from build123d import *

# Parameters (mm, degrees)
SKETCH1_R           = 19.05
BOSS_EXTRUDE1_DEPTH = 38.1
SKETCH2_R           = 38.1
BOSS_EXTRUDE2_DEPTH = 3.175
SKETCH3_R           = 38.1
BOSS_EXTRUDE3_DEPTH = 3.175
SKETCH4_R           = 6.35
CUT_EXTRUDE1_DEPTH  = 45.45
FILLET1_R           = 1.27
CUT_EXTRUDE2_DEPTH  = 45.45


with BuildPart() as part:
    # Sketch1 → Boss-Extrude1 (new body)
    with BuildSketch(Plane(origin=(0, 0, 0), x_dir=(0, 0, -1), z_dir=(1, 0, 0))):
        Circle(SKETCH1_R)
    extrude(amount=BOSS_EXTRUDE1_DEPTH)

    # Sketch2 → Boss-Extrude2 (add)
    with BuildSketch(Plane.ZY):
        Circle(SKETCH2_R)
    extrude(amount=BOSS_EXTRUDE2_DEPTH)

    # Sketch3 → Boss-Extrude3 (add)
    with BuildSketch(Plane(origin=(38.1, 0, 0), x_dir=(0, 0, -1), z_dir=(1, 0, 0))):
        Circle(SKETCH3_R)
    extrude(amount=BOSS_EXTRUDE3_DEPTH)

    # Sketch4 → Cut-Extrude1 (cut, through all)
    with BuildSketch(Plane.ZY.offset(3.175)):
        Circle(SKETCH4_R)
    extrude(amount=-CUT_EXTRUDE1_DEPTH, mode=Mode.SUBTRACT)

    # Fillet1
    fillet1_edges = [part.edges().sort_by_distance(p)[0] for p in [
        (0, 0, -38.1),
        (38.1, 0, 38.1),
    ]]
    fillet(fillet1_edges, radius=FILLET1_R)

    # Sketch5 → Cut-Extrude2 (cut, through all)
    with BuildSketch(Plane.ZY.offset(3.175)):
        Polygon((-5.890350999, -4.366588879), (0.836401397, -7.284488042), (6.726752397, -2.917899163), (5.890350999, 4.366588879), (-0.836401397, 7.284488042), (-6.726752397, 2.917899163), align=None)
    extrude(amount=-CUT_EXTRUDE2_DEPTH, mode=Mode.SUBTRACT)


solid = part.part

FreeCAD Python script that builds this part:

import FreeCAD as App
import Part
import Sketcher
from FreeCAD import Vector
Q = App.Units.Quantity


def edges_at(feature, points):
    """Names of the edges that pass closest to the given points."""
    edges = feature.Shape.Edges
    near = lambda p: min(range(len(edges)), key=lambda i: edges[i].distToShape(Part.Vertex(*p))[0])
    return sorted({f"Edge{near(p) + 1}" for p in points})

doc = App.newDocument("Part")
body = doc.addObject("PartDesign::Body", "Body")

sketch1 = body.newObject("Sketcher::SketchObject", "Sketch")
sketch1.AttachmentSupport = (doc.getObject("YZ_Plane"), [""])
sketch1.MapMode = "FlatFace"
sketch1.addGeometry(Part.Circle(Vector(0, 0, 0), Vector(0, 0, 1), 19), False)
sketch1.addConstraint(Sketcher.Constraint("Coincident", 0, 3, -1, 1))
sketch1.addConstraint(Sketcher.Constraint("Diameter", 0, Q("1.5 in")))
pad1 = body.newObject("PartDesign::Pad", "Pad")
pad1.Profile = sketch1
pad1.Length = Q("1.5 in")

sketch2 = body.newObject("Sketcher::SketchObject", "Sketch001")
sketch2.AttachmentSupport = (doc.getObject("YZ_Plane"), [""])
sketch2.MapMode = "FlatFace"
sketch2.addGeometry(Part.Circle(Vector(0, 0, 0), Vector(0, 0, 1), 38), False)
sketch2.addConstraint(Sketcher.Constraint("Coincident", 0, 3, -1, 1))
sketch2.addConstraint(Sketcher.Constraint("Diameter", 0, Q("3 in")))
pad2 = body.newObject("PartDesign::Pad", "Pad001")
pad2.Profile = sketch2
pad2.Length = Q("0.125 in")
pad2.Reversed = True

sketch3 = body.newObject("Sketcher::SketchObject", "Sketch002")
sketch3.AttachmentSupport = (doc.getObject("YZ_Plane"), [""])
sketch3.MapMode = "FlatFace"
sketch3.AttachmentOffset = App.Placement(Vector(0, 0, 1.5 * 25.4), App.Rotation())
sketch3.addGeometry(Part.Circle(Vector(0, 0, 0), Vector(0, 0, 1), 38), False)
sketch3.addConstraint(Sketcher.Constraint("Coincident", 0, 3, -1, 1))
sketch3.addConstraint(Sketcher.Constraint("Diameter", 0, Q("3 in")))
pad3 = body.newObject("PartDesign::Pad", "Pad002")
pad3.Profile = sketch3
pad3.Length = Q("0.125 in")

sketch4 = body.newObject("Sketcher::SketchObject", "Sketch003")
sketch4.AttachmentSupport = (doc.getObject("YZ_Plane"), [""])
sketch4.MapMode = "FlatFace"
sketch4.AttachmentOffset = App.Placement(Vector(0, 0, -0.125 * 25.4), App.Rotation())
sketch4.addGeometry(Part.Circle(Vector(0, 0, 0), Vector(0, 0, 1), 6), False)
sketch4.addConstraint(Sketcher.Constraint("Coincident", 0, 3, -1, 1))
sketch4.addConstraint(Sketcher.Constraint("Diameter", 0, Q("0.5 in")))
pocket1 = body.newObject("PartDesign::Pocket", "Pocket")
pocket1.Profile = sketch4
pocket1.Type = "ThroughAll"
pocket1.Reversed = True
doc.recompute()

fillet = body.newObject("PartDesign::Fillet", "Fillet")
fillet.Base = (pocket1, edges_at(pocket1, [(0, 0, -38.1), (38.1, 0, 38.1)]))
fillet.Radius = Q("0.05 in")

sketch5 = body.newObject("Sketcher::SketchObject", "Sketch004")
sketch5.AttachmentSupport = (doc.getObject("YZ_Plane"), [""])
sketch5.MapMode = "FlatFace"
sketch5.AttachmentOffset = App.Placement(Vector(0, 0, -0.125 * 25.4), App.Rotation())
sketch5.addGeometry(Part.LineSegment(Vector(-4, -6, 0), Vector(-7, 1, 0)), False)
sketch5.addGeometry(Part.LineSegment(Vector(-7, 1, 0), Vector(-3, 7, 0)), False)
sketch5.addGeometry(Part.LineSegment(Vector(-3, 7, 0), Vector(4, 6, 0)), False)
sketch5.addGeometry(Part.LineSegment(Vector(4, 6, 0), Vector(7, -1, 0)), False)
sketch5.addGeometry(Part.LineSegment(Vector(7, -1, 0), Vector(3, -7, 0)), False)
sketch5.addGeometry(Part.LineSegment(Vector(3, -7, 0), Vector(-4, -6, 0)), False)
sketch5.addConstraint(Sketcher.Constraint("Coincident", 0, 2, 1, 1))
sketch5.addConstraint(Sketcher.Constraint("Coincident", 1, 2, 2, 1))
sketch5.addConstraint(Sketcher.Constraint("Coincident", 2, 2, 3, 1))
sketch5.addConstraint(Sketcher.Constraint("Coincident", 3, 2, 4, 1))
sketch5.addConstraint(Sketcher.Constraint("Coincident", 4, 2, 5, 1))
sketch5.addConstraint(Sketcher.Constraint("Coincident", 5, 2, 0, 1))
sketch5.addConstraint(Sketcher.Constraint("Symmetric", 0, 2, 3, 2, -1, 1))
sketch5.addConstraint(Sketcher.Constraint("Symmetric", 1, 2, 4, 2, -1, 1))
sketch5.addConstraint(Sketcher.Constraint("Symmetric", 2, 2, 5, 2, -1, 1))
sketch5.addConstraint(Sketcher.Constraint("Equal", 0, 1))
sketch5.addConstraint(Sketcher.Constraint("Equal", 1, 2))
sketch5.addConstraint(Sketcher.Constraint("Angle", 0, Q("113.45001 deg")))
sketch5.addConstraint(Sketcher.Constraint("Angle", 1, Q("53.45001 deg")))
sketch5.addConstraint(Sketcher.Constraint("Angle", 2, Q("-6.54999 deg")))
sketch5.addConstraint(Sketcher.Constraint("DistanceY", -1, 1, 0, 2, Q("0.836401 mm")))
pocket2 = body.newObject("PartDesign::Pocket", "Pocket001")
pocket2.Profile = sketch5
pocket2.Type = "ThroughAll"
pocket2.Reversed = True

doc.recompute()
